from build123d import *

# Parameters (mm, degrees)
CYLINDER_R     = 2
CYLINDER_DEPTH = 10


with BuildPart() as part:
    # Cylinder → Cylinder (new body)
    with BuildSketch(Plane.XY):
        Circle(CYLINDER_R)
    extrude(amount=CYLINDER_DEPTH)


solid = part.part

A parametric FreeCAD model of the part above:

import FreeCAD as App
import Part
import Sketcher

doc = App.newDocument("Part")
body = doc.addObject("PartDesign::Body", "Body")

sketch1 = doc.addObject("Sketcher::SketchObject", "Sketch")
body.addObject(sketch1)
sketch1.AttachmentSupport = (doc.XY_Plane, [""])
sketch1.MapMode = "FlatFace"
sketch1.addGeometry(Part.Circle(App.Vector(0, 0, 0), App.Vector(0, 0, 1), 2), False)
sketch1.addConstraint(Sketcher.Constraint("Coincident", 0, 3, -1, 1))
sketch1.addConstraint(Sketcher.Constraint("Diameter", 0, 4.0))
pad1 = doc.addObject("PartDesign::Pad", "Pad")
body.addObject(pad1)
pad1.Profile = sketch1
pad1.Length = 10

doc.recompute()
